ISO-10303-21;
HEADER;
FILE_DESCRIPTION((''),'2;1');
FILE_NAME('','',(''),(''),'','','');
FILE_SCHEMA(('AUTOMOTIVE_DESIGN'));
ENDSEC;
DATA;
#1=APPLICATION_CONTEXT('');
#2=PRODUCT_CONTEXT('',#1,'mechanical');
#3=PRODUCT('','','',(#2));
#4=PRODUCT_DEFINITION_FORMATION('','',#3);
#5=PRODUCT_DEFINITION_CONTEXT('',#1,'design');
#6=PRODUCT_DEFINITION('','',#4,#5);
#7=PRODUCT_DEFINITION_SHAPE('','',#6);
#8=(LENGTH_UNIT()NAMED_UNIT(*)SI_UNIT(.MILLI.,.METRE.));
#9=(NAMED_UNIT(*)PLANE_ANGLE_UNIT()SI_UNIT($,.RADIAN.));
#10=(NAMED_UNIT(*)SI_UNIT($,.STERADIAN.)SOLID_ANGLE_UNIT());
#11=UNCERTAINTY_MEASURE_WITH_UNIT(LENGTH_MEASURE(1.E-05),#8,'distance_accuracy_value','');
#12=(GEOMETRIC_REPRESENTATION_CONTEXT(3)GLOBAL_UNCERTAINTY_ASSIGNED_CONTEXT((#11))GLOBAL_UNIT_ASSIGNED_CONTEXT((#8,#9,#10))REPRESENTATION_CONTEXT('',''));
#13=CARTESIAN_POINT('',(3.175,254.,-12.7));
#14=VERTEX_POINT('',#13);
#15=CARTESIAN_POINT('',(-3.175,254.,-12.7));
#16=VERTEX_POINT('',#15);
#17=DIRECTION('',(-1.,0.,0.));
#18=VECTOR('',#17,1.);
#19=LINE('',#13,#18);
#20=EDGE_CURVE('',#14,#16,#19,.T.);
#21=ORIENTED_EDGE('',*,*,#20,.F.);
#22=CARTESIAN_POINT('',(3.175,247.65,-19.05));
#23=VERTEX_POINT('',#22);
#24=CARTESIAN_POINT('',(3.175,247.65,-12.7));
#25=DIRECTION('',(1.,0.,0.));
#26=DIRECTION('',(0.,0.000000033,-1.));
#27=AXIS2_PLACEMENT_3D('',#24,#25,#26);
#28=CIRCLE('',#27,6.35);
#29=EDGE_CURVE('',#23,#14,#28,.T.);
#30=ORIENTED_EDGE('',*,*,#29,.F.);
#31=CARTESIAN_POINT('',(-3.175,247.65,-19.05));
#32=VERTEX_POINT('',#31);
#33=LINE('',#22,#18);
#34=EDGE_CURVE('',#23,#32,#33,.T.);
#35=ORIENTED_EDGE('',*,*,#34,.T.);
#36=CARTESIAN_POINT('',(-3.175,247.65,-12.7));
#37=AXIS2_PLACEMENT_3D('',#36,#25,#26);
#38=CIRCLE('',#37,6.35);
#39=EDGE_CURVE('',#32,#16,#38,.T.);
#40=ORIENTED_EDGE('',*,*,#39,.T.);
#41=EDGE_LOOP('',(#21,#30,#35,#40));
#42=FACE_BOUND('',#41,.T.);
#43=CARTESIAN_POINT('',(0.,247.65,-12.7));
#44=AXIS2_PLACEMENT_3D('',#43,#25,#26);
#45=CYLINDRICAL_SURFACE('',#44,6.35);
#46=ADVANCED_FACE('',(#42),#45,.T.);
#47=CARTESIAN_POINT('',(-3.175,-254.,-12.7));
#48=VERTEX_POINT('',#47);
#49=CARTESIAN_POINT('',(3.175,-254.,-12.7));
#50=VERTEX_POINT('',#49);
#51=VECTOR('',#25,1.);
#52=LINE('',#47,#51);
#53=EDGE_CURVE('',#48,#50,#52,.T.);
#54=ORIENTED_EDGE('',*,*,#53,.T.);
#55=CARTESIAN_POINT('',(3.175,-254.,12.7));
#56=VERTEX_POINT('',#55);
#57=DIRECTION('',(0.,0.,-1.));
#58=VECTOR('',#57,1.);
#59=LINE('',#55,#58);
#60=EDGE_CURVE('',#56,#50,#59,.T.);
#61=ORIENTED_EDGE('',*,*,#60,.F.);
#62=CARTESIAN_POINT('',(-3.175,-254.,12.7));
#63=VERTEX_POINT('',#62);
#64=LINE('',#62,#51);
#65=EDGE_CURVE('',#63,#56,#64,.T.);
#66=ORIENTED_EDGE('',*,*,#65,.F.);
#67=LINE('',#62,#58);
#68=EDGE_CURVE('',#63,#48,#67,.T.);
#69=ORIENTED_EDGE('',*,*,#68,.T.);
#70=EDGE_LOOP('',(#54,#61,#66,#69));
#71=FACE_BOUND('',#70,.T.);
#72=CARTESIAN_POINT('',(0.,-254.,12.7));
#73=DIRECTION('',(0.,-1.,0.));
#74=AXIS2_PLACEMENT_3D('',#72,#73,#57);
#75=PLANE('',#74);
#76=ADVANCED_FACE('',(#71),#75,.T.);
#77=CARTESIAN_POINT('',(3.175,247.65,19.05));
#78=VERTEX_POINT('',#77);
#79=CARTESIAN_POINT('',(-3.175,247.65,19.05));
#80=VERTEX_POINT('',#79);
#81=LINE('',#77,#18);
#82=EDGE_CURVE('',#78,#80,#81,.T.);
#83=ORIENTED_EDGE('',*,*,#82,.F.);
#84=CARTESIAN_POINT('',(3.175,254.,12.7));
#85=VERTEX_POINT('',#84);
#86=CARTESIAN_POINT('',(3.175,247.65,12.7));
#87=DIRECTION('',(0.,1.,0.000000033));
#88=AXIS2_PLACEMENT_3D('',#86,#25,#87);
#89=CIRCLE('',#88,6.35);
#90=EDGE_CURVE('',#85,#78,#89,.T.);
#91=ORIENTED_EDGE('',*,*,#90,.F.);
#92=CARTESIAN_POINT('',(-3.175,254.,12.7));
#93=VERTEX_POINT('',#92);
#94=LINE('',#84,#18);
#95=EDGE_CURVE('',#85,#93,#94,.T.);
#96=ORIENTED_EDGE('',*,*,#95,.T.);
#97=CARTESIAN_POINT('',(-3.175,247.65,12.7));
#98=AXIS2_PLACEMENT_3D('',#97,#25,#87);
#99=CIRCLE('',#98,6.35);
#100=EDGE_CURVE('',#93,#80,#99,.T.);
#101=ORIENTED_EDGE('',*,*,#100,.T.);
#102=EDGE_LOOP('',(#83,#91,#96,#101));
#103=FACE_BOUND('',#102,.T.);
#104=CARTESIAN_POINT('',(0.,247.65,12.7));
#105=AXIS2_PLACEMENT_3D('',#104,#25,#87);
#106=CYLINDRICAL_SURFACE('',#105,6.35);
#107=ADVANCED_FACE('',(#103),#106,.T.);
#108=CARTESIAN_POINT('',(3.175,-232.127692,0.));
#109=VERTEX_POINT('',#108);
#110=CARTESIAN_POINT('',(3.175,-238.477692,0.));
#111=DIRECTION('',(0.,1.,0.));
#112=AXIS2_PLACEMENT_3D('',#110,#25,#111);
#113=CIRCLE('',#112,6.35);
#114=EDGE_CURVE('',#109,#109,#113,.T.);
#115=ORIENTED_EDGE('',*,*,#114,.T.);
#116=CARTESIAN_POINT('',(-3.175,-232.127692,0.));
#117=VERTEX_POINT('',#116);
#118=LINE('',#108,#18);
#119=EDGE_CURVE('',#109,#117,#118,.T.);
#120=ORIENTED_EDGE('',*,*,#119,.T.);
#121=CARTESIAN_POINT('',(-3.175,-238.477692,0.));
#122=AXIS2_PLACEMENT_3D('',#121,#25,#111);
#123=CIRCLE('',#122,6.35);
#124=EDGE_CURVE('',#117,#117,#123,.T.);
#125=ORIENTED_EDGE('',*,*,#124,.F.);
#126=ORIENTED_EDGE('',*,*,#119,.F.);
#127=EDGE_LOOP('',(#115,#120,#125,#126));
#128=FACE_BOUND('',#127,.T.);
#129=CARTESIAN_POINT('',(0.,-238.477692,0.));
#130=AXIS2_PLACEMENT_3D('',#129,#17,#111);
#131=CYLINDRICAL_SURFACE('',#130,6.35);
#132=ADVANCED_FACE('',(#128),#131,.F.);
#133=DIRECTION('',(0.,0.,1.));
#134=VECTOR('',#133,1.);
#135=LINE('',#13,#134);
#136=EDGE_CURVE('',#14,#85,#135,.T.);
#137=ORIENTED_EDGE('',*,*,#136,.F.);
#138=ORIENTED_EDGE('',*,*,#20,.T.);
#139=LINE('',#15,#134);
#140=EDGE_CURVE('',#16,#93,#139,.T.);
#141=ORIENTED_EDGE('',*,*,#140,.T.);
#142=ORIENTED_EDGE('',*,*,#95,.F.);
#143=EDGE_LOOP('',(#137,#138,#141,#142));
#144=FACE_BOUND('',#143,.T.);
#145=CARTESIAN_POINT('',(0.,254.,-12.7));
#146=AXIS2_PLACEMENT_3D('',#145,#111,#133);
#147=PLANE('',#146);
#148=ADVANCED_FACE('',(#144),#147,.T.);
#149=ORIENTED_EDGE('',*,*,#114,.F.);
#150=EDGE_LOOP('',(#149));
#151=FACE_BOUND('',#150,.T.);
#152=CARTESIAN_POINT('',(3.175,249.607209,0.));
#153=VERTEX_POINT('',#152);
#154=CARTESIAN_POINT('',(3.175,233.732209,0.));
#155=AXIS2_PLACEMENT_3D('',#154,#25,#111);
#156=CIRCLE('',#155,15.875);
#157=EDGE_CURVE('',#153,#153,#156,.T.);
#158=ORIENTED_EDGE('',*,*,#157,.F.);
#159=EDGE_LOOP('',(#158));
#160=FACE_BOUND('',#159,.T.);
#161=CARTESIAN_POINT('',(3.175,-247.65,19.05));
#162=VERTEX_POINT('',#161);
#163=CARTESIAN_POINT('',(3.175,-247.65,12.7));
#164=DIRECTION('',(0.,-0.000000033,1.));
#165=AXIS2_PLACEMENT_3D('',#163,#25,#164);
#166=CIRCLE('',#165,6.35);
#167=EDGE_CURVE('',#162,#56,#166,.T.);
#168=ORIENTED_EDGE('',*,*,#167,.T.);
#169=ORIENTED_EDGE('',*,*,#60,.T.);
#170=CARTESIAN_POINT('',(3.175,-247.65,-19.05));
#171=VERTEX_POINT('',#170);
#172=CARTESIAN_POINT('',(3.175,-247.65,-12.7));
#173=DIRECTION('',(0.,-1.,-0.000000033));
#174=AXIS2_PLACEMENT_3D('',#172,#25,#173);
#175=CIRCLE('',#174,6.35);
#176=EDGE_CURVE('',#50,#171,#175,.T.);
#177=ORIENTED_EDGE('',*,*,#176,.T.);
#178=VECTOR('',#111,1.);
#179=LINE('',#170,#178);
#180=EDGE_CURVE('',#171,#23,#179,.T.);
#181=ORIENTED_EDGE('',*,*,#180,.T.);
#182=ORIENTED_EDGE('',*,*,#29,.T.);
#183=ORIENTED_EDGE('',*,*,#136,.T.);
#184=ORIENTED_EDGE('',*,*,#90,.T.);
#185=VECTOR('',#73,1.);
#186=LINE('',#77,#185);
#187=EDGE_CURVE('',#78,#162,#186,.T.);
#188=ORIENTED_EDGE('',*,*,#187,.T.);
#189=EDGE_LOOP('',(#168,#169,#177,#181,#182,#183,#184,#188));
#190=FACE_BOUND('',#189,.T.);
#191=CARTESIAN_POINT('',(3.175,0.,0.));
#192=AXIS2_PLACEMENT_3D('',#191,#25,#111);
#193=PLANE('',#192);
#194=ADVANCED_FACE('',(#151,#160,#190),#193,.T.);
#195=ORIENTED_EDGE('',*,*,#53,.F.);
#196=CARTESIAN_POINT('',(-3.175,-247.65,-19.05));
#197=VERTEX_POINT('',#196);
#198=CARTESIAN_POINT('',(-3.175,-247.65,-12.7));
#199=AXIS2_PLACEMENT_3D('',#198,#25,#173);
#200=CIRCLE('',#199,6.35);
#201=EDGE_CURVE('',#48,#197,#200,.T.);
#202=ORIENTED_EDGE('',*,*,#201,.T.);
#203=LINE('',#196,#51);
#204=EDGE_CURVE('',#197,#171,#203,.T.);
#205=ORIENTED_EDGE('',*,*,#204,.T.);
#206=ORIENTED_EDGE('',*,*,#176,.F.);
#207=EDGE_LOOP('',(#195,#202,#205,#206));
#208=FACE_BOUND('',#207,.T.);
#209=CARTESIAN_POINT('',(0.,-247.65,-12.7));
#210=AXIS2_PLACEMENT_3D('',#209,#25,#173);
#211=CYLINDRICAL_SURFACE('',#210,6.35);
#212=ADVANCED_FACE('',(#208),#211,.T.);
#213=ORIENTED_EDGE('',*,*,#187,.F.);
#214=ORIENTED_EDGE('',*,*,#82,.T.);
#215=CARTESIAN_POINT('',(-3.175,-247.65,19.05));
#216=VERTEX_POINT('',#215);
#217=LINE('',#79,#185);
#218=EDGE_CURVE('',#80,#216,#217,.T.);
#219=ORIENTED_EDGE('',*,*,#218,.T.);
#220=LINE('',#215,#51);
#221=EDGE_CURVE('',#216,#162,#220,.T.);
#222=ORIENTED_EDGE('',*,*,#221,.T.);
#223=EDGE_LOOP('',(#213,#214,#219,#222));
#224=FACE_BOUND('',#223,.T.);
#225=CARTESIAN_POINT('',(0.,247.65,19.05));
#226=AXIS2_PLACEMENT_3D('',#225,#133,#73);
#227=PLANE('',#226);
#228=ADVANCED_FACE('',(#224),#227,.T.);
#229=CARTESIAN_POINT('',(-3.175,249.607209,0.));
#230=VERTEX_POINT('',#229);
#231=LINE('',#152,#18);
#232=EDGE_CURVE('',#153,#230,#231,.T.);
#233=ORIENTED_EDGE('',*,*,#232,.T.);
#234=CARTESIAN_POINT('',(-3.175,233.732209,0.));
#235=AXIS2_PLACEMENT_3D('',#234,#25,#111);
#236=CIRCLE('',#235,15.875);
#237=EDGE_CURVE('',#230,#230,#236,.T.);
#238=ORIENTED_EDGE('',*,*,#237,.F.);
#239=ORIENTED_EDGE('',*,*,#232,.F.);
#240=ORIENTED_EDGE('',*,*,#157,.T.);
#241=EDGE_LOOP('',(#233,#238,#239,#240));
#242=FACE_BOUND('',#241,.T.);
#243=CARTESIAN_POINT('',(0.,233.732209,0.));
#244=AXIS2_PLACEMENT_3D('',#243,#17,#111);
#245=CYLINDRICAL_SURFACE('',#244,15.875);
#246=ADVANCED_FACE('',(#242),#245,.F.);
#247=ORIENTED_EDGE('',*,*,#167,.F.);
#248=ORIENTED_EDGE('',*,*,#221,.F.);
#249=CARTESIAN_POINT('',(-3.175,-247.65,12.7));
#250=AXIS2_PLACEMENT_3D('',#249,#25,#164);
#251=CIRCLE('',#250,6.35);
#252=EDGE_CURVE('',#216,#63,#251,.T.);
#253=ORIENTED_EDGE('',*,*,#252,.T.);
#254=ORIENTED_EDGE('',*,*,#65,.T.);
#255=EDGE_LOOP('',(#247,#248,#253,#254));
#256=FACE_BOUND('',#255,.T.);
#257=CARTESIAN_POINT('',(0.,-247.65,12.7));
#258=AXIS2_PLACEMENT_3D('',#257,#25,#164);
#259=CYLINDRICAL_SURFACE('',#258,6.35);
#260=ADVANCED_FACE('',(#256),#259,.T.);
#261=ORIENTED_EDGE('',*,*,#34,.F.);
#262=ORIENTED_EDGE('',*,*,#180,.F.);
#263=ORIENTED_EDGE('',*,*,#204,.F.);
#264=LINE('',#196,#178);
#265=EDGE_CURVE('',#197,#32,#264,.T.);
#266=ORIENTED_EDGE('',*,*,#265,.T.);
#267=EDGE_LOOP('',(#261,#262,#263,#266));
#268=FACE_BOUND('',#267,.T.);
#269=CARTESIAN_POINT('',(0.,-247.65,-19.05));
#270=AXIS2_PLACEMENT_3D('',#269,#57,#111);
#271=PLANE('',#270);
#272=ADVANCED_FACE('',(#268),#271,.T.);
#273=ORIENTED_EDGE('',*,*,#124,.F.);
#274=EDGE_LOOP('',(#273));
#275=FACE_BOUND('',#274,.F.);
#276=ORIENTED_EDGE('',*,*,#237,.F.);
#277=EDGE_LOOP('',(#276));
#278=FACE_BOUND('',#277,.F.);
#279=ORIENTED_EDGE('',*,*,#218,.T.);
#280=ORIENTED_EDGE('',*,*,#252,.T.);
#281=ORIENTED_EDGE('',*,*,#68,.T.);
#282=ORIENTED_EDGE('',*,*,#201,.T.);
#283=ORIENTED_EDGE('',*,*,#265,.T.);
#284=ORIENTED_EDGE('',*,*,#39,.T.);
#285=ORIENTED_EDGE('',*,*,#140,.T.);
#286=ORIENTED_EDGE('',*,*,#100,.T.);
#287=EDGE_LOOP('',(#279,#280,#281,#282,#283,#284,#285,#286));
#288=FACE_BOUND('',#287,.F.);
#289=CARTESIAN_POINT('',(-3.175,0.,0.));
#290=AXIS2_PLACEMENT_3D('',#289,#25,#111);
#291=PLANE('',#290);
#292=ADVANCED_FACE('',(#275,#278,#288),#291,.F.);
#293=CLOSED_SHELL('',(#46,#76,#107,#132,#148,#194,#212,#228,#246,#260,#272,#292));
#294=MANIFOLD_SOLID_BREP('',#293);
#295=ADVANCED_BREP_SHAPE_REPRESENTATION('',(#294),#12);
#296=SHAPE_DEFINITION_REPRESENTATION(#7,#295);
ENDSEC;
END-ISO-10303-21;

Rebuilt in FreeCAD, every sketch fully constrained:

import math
import FreeCAD as App
import Part
import Sketcher
from FreeCAD import Vector
Q = App.Units.Quantity

doc = App.newDocument("Part")
body = doc.addObject("PartDesign::Body", "Body")

sketch1 = body.newObject("Sketcher::SketchObject", "Sketch")
sketch1.AttachmentSupport = (doc.getObject("YZ_Plane"), [""])
sketch1.MapMode = "FlatFace"
sketch1.addGeometry(Part.LineSegment(Vector(248, 19, 0), Vector(-248, 19, 0)), False)
sketch1.addGeometry(Part.ArcOfCircle(Part.Circle(Vector(-248, 13, 0), Vector(0, 0, 1), 6), math.radians(90), math.radians(180)), False)
sketch1.addGeometry(Part.LineSegment(Vector(-254, 13, 0), Vector(-254, -13, 0)), False)
sketch1.addGeometry(Part.ArcOfCircle(Part.Circle(Vector(-248, -13, 0), Vector(0, 0, 1), 6), math.radians(-180), math.radians(-90)), False)
sketch1.addGeometry(Part.LineSegment(Vector(-248, -19, 0), Vector(248, -19, 0)), False)
sketch1.addGeometry(Part.ArcOfCircle(Part.Circle(Vector(248, -13, 0), Vector(0, 0, 1), 6), math.radians(-90), math.radians(0)), False)
sketch1.addGeometry(Part.LineSegment(Vector(254, -13, 0), Vector(254, 13, 0)), False)
sketch1.addGeometry(Part.ArcOfCircle(Part.Circle(Vector(248, 13, 0), Vector(0, 0, 1), 6), math.radians(0), math.radians(90)), False)
sketch1.addGeometry(Part.Circle(Vector(-238, 0, 0), Vector(0, 0, 1), 6), False)
sketch1.addGeometry(Part.Circle(Vector(234, 0, 0), Vector(0, 0, 1), 16), False)
sketch1.addConstraint(Sketcher.Constraint("Tangent", 0, 2, 1, 1))
sketch1.addConstraint(Sketcher.Constraint("Tangent", 1, 2, 2, 1))
sketch1.addConstraint(Sketcher.Constraint("Tangent", 2, 2, 3, 1))
sketch1.addConstraint(Sketcher.Constraint("Tangent", 3, 2, 4, 1))
sketch1.addConstraint(Sketcher.Constraint("Tangent", 4, 2, 5, 1))
sketch1.addConstraint(Sketcher.Constraint("Tangent", 5, 2, 6, 1))
sketch1.addConstraint(Sketcher.Constraint("Tangent", 6, 2, 7, 1))
sketch1.addConstraint(Sketcher.Constraint("Tangent", 7, 2, 0, 1))
sketch1.addConstraint(Sketcher.Constraint("Horizontal", 0))
sketch1.addConstraint(Sketcher.Constraint("Vertical", 2))
sketch1.addConstraint(Sketcher.Constraint("Horizontal", 4))
sketch1.addConstraint(Sketcher.Constraint("Vertical", 6))
sketch1.addConstraint(Sketcher.Constraint("Equal", 1, 3))
sketch1.addConstraint(Sketcher.Constraint("Equal", 3, 5))
sketch1.addConstraint(Sketcher.Constraint("Equal", 5, 7))
sketch1.addConstraint(Sketcher.Constraint("Equal", 7, 8))
sketch1.addConstraint(Sketcher.Constraint("Symmetric", 1, 3, 5, 3, -1, 1))
sketch1.addConstraint(Sketcher.Constraint("PointOnObject", 8, 3, -1))
sketch1.addConstraint(Sketcher.Constraint("PointOnObject", 9, 3, -1))
sketch1.addConstraint(Sketcher.Constraint("Diameter", 8, Q("0.5 in")))
sketch1.addConstraint(Sketcher.Constraint("Diameter", 9, Q("1.25 in")))
sketch1.addConstraint(Sketcher.Constraint("DistanceY", 2, 2, 2, 1, Q("1 in")))
sketch1.addConstraint(Sketcher.Constraint("DistanceX", 0, 2, 0, 1, Q("19.5 in")))
sketch1.addConstraint(Sketcher.Constraint("DistanceX", 8, 3, 9, 3, 472.209901))
sketch1.addConstraint(Sketcher.Constraint("DistanceX", 8, 3, -1, 1, 238.477692))
pad1 = body.newObject("PartDesign::Pad", "Pad")
pad1.Profile = sketch1
pad1.Length = Q("0.25 in")
pad1.Midplane = True

doc.recompute()
